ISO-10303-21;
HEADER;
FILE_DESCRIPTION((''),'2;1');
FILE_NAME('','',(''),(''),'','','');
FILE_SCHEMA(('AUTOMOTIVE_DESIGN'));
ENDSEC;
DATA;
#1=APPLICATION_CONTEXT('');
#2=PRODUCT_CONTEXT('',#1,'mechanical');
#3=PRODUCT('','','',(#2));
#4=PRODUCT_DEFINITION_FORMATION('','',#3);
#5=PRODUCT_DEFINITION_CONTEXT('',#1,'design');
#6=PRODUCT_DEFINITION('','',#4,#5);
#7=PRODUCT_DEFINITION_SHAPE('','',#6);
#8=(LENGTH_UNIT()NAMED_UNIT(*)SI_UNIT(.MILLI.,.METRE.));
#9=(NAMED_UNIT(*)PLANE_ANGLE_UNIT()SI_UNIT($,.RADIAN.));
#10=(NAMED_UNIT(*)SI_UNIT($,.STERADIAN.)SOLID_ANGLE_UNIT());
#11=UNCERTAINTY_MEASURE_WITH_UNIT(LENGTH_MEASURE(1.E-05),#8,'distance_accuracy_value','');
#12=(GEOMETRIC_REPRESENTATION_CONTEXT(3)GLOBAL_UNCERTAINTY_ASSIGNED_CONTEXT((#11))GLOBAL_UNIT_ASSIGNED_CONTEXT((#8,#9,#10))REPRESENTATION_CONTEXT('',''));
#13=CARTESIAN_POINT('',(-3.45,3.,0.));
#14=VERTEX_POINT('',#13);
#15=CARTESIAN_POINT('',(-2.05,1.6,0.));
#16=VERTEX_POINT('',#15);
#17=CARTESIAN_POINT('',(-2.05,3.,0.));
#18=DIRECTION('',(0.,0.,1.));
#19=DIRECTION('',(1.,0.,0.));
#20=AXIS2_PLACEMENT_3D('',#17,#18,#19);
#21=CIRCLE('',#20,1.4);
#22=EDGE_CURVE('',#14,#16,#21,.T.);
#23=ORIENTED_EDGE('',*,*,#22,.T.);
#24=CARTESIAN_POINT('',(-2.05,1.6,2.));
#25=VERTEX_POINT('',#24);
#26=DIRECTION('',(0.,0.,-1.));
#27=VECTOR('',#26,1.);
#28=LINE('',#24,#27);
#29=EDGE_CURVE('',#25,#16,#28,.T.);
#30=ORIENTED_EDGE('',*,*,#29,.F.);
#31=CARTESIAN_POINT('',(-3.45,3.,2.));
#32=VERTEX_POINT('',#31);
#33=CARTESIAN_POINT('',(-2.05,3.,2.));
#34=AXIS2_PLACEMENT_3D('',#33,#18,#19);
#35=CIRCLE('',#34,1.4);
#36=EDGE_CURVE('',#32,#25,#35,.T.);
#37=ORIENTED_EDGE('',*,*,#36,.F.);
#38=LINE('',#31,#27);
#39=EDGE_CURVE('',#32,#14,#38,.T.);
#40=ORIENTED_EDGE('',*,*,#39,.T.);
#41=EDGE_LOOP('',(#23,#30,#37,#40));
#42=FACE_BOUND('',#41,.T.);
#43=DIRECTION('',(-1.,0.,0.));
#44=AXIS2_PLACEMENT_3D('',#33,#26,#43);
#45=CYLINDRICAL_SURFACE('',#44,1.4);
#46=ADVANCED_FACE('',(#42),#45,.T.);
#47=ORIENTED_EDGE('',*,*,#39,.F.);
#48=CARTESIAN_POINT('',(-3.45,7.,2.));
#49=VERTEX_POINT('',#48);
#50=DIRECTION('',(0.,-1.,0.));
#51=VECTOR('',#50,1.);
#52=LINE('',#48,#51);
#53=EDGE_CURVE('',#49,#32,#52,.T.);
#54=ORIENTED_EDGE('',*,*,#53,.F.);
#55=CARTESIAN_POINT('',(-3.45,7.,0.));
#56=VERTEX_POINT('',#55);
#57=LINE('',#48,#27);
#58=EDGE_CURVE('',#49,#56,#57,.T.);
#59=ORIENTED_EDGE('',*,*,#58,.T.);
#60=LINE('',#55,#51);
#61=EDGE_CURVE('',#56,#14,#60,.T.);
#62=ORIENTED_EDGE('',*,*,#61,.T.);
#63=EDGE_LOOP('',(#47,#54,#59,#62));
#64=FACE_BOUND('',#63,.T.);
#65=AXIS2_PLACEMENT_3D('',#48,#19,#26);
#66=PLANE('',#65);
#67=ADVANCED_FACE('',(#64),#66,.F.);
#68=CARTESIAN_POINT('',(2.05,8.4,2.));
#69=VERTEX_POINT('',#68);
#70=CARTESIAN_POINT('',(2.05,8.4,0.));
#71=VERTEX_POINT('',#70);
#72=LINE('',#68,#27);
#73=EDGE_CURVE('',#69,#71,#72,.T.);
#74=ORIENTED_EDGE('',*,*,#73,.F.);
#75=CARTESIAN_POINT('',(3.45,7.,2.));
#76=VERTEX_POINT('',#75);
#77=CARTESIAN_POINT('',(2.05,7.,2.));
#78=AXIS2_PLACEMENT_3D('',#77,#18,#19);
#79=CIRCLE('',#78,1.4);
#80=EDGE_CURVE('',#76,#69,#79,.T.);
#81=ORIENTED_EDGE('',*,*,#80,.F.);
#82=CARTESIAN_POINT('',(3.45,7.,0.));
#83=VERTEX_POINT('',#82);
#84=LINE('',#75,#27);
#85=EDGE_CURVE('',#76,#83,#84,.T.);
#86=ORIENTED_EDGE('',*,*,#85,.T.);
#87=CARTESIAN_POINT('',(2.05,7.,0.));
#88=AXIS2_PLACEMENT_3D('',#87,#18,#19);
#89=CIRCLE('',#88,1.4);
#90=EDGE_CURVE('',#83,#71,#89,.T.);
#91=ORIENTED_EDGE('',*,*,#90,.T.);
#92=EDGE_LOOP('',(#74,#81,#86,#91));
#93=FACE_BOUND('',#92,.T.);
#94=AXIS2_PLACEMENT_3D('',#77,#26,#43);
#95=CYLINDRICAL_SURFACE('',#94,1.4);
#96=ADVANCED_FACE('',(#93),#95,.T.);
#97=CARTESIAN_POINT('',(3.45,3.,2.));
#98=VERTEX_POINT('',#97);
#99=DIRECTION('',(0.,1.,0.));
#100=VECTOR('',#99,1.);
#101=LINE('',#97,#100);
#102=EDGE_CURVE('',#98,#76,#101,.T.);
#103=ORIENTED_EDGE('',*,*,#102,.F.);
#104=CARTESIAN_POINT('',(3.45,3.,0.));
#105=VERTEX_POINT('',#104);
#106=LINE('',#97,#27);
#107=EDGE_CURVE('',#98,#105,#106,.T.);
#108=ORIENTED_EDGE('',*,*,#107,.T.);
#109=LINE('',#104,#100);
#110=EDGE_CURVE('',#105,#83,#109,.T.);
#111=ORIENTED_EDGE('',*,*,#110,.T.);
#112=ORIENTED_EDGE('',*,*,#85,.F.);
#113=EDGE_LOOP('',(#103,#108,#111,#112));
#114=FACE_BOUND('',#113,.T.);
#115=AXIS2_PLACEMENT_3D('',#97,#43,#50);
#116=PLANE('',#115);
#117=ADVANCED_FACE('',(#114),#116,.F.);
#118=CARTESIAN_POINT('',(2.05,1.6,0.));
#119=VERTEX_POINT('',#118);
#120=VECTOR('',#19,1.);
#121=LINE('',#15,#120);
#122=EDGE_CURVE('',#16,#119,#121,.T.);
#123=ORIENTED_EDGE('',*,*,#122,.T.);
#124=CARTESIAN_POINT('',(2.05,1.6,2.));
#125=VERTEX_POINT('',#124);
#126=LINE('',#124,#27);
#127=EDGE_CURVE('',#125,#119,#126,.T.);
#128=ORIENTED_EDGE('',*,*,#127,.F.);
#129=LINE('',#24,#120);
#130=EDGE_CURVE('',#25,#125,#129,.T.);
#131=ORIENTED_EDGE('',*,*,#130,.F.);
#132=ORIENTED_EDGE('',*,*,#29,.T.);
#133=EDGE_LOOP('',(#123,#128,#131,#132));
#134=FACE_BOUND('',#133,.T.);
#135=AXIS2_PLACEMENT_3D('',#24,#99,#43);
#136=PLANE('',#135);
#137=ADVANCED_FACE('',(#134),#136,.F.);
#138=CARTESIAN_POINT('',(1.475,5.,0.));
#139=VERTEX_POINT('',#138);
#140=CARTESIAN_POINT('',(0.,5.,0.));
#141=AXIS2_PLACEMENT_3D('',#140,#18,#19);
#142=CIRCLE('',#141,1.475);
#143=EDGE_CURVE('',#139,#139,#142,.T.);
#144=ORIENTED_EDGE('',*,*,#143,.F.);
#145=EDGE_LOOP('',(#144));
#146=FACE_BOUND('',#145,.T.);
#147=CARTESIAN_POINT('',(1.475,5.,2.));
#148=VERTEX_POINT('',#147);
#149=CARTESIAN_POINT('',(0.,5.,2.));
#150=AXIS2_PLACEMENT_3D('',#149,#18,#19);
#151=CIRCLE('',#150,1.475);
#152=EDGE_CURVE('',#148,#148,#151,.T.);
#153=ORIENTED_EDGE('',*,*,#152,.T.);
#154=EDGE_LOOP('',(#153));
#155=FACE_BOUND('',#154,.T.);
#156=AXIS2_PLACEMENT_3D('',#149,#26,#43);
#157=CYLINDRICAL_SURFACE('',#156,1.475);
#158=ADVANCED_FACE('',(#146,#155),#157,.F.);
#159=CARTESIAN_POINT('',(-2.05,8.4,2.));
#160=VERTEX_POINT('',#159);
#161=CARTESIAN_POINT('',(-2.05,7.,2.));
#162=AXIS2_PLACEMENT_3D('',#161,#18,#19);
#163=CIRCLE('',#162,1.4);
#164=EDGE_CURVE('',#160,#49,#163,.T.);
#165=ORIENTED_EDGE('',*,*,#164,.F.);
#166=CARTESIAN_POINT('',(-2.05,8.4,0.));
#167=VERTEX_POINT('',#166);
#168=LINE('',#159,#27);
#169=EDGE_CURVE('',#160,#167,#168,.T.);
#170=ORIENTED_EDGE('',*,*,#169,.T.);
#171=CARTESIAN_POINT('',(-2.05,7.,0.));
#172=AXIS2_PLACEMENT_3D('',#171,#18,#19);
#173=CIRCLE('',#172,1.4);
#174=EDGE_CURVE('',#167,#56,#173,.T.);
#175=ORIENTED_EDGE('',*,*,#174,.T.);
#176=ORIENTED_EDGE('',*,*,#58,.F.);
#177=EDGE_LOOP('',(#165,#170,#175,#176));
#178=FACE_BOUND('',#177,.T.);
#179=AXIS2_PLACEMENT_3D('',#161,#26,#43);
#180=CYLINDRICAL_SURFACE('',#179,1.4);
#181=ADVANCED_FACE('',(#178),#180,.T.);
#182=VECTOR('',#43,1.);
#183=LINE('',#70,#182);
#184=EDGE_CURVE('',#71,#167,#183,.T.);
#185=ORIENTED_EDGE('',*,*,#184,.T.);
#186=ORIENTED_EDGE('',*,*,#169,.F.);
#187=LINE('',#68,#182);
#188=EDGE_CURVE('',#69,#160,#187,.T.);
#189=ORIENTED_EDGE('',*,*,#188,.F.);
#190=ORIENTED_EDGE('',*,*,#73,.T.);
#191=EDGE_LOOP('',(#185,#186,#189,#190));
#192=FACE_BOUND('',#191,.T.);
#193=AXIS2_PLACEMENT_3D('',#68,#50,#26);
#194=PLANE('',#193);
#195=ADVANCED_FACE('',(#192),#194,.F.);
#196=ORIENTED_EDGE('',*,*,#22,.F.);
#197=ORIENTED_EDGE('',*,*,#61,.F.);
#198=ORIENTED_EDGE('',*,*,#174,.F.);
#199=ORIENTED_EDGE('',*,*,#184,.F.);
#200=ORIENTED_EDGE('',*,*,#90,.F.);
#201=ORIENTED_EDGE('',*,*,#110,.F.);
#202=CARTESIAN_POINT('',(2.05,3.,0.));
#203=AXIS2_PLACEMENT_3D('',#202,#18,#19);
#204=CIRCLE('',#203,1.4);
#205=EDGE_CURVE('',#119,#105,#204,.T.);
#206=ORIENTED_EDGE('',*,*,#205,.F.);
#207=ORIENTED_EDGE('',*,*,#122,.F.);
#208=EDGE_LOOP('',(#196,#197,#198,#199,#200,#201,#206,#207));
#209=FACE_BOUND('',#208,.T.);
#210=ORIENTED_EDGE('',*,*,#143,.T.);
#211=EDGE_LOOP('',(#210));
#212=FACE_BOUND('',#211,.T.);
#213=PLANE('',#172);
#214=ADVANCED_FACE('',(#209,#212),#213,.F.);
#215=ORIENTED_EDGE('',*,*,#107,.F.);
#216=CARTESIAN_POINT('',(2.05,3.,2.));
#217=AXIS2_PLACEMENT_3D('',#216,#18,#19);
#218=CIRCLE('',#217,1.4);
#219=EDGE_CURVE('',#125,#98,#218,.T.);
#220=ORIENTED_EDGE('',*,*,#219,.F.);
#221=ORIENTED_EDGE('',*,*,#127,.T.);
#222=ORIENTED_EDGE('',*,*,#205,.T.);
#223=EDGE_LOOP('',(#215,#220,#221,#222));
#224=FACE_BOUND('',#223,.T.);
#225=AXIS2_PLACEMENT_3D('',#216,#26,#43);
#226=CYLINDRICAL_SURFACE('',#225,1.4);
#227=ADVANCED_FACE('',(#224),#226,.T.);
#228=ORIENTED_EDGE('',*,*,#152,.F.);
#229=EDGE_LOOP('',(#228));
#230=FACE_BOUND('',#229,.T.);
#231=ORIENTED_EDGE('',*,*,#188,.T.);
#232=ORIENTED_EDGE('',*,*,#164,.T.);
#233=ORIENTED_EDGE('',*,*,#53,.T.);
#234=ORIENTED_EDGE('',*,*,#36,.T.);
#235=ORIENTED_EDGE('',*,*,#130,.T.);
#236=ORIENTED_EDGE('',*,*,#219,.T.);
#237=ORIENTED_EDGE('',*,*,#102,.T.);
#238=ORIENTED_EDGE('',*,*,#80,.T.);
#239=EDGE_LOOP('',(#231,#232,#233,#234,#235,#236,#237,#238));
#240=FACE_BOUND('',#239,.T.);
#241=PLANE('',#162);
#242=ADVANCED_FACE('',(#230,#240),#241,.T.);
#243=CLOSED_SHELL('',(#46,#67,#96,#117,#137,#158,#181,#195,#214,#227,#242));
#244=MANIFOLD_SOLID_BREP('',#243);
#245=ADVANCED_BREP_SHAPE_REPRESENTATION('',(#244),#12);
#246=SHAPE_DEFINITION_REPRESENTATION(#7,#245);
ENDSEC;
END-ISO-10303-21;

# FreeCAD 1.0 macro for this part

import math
import FreeCAD as App
import Part
import Sketcher
from FreeCAD import Vector

doc = App.newDocument("Part")
body = doc.addObject("PartDesign::Body", "Body")

# Sketch on XY plane
sketch1 = body.newObject("Sketcher::SketchObject", "Sketch")
sketch1.AttachmentSupport = (doc.getObject("XY_Plane"), [""])
sketch1.MapMode = "FlatFace"
sketch1.addGeometry(Part.LineSegment(Vector(-3.5, 7, 0), Vector(-3.5, 3, 0)), False)
sketch1.addGeometry(Part.ArcOfCircle(Part.Circle(Vector(-2.1, 3, 0), Vector(0, 0, 1), 1.4), math.radians(180), math.radians(270)), False)
sketch1.addGeometry(Part.LineSegment(Vector(-2, 1.6, 0), Vector(2, 1.6, 0)), False)
sketch1.addGeometry(Part.ArcOfCircle(Part.Circle(Vector(2.1, 3, 0), Vector(0, 0, 1), 1.4), math.radians(-90), math.radians(0)), False)
sketch1.addGeometry(Part.LineSegment(Vector(3.5, 3, 0), Vector(3.5, 7, 0)), False)
sketch1.addGeometry(Part.ArcOfCircle(Part.Circle(Vector(2.1, 7, 0), Vector(0, 0, 1), 1.4), math.radians(0), math.radians(90)), False)
sketch1.addGeometry(Part.LineSegment(Vector(2, 8.4, 0), Vector(-2, 8.4, 0)), False)
sketch1.addGeometry(Part.ArcOfCircle(Part.Circle(Vector(-2.1, 7, 0), Vector(0, 0, 1), 1.4), math.radians(90), math.radians(180)), False)
sketch1.addGeometry(Part.Circle(Vector(0, 5, 0), Vector(0, 0, 1), 1.5), False)
sketch1.addConstraint(Sketcher.Constraint("Tangent", 0, 2, 1, 1))
sketch1.addConstraint(Sketcher.Constraint("Tangent", 1, 2, 2, 1))
sketch1.addConstraint(Sketcher.Constraint("Tangent", 2, 2, 3, 1))
sketch1.addConstraint(Sketcher.Constraint("Tangent", 3, 2, 4, 1))
sketch1.addConstraint(Sketcher.Constraint("Tangent", 4, 2, 5, 1))
sketch1.addConstraint(Sketcher.Constraint("Tangent", 5, 2, 6, 1))
sketch1.addConstraint(Sketcher.Constraint("Tangent", 6, 2, 7, 1))
sketch1.addConstraint(Sketcher.Constraint("Tangent", 7, 2, 0, 1))
sketch1.addConstraint(Sketcher.Constraint("Vertical", 0))
sketch1.addConstraint(Sketcher.Constraint("Horizontal", 2))
sketch1.addConstraint(Sketcher.Constraint("Vertical", 4))
sketch1.addConstraint(Sketcher.Constraint("Horizontal", 6))
sketch1.addConstraint(Sketcher.Constraint("Equal", 1, 3))
sketch1.addConstraint(Sketcher.Constraint("Equal", 3, 5))
sketch1.addConstraint(Sketcher.Constraint("Equal", 5, 7))
sketch1.addConstraint(Sketcher.Constraint("PointOnObject", 8, 3, -2))
sketch1.addConstraint(Sketcher.Constraint("Radius", 1, 1.4))
sketch1.addConstraint(Sketcher.Constraint("Diameter", 8, 2.95))
sketch1.addConstraint(Sketcher.Constraint("DistanceY", 0, 2, 0, 1, 4.0))
sketch1.addConstraint(Sketcher.Constraint("DistanceX", 2, 1, 2, 2, 4.1))
sketch1.addConstraint(Sketcher.Constraint("DistanceY", -1, 1, 1, 3, 3.0))
sketch1.addConstraint(Sketcher.Constraint("DistanceY", -1, 1, 8, 3, 5.0))
sketch1.addConstraint(Sketcher.Constraint("DistanceX", 1, 3, -1, 1, 2.05))
pad1 = body.newObject("PartDesign::Pad", "Pad")
pad1.Profile = sketch1
pad1.Length = 2

doc.recompute()
